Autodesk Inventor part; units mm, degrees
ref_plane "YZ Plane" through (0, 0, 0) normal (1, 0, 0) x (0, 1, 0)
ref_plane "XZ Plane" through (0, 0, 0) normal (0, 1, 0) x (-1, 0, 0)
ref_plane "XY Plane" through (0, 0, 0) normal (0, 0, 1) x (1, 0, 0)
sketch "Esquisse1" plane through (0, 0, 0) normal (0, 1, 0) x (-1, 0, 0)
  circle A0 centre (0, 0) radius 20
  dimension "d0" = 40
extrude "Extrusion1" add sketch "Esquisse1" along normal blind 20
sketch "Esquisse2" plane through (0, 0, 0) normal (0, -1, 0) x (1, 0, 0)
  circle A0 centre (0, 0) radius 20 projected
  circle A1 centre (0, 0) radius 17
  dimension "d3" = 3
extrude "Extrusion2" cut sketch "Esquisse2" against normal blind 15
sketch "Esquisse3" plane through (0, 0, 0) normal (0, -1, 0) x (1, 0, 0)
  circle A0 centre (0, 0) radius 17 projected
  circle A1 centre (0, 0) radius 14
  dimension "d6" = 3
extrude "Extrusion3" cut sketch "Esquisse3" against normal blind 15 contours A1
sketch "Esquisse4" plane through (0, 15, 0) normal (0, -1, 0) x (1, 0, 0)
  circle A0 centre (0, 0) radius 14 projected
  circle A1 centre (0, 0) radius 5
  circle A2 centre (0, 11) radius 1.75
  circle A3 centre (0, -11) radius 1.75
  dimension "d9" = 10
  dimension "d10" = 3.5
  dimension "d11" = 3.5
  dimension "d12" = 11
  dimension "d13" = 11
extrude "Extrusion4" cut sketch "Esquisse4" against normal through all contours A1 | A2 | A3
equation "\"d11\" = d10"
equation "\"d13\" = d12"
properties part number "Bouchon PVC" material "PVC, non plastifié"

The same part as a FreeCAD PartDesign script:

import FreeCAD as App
import Part
import Sketcher
from FreeCAD import Vector
Q = App.Units.Quantity

doc = App.newDocument("Part")
body = doc.addObject("PartDesign::Body", "Body")

sketch1 = doc.addObject("Sketcher::SketchObject", "Sketch")
body.addObject(sketch1)
sketch1.AttachmentSupport = (doc.XZ_Plane, [""])
sketch1.MapMode = "FlatFace"
sketch1.addGeometry(Part.Circle(Vector(0, 0, 0), Vector(0, 0, 1), 20), False)
sketch1.addConstraint([
    Sketcher.Constraint("Coincident", 0, 3, -1, 1),
    Sketcher.Constraint("Diameter", 0, Q("40 mm")),
])
pad1 = doc.addObject("PartDesign::Pad", "Pad")
body.addObject(pad1)
pad1.Profile = sketch1
pad1.Length = 20
pad1.Reversed = True

sketch2 = doc.addObject("Sketcher::SketchObject", "Sketch001")
body.addObject(sketch2)
sketch2.AttachmentSupport = (doc.XZ_Plane, [""])
sketch2.MapMode = "FlatFace"
sketch2.addGeometry([
    Part.Circle(Vector(0, 0, 0), Vector(0, 0, 1), 20),
    Part.Circle(Vector(0, 0, 0), Vector(0, 0, 1), 17),
], False)
sketch2.addConstraint([
    Sketcher.Constraint("Coincident", 0, 3, -1, 1),
    Sketcher.Constraint("Coincident", 1, 3, -1, 1),
    Sketcher.Constraint("Diameter", 0, Q("40 mm")),
    Sketcher.Constraint("Diameter", 1, Q("34 mm")),
])
pocket1 = doc.addObject("PartDesign::Pocket", "Pocket")
body.addObject(pocket1)
pocket1.Profile = sketch2
pocket1.Length = 15

sketch3 = doc.addObject("Sketcher::SketchObject", "Sketch002")
body.addObject(sketch3)
sketch3.AttachmentSupport = (doc.XZ_Plane, [""])
sketch3.MapMode = "FlatFace"
sketch3.addGeometry(Part.Circle(Vector(0, 0, 0), Vector(0, 0, 1), 14), False)
sketch3.addConstraint([
    Sketcher.Constraint("Coincident", 0, 3, -1, 1),
    Sketcher.Constraint("Diameter", 0, Q("28 mm")),
])
pocket2 = doc.addObject("PartDesign::Pocket", "Pocket001")
body.addObject(pocket2)
pocket2.Profile = sketch3
pocket2.Length = 15

sketch4 = doc.addObject("Sketcher::SketchObject", "Sketch003")
body.addObject(sketch4)
sketch4.AttachmentSupport = (doc.XZ_Plane, [""])
sketch4.MapMode = "FlatFace"
sketch4.AttachmentOffset = App.Placement(Vector(0, 0, -15), App.Rotation())
sketch4.addGeometry([
    Part.Circle(Vector(0, 0, 0), Vector(0, 0, 1), 5),
    Part.Circle(Vector(0, 11, 0), Vector(0, 0, 1), 1.8),
    Part.Circle(Vector(0, -11, 0), Vector(0, 0, 1), 1.8),
], False)
sketch4.addConstraint([
    Sketcher.Constraint("Coincident", 0, 3, -1, 1),
    Sketcher.Constraint("Equal", 1, 2),
    Sketcher.Constraint("Symmetric", 1, 3, 2, 3, -1, 1),
    Sketcher.Constraint("PointOnObject", 1, 3, -2),
    Sketcher.Constraint("Diameter", 0, Q("10 mm")),
    Sketcher.Constraint("Diameter", 1, Q("3.5 mm")),
    Sketcher.Constraint("DistanceY", -1, 1, 1, 3, Q("11 mm")),
])
pocket3 = doc.addObject("PartDesign::Pocket", "Pocket002")
body.addObject(pocket3)
pocket3.Profile = sketch4
pocket3.Type = "ThroughAll"

doc.recompute()
